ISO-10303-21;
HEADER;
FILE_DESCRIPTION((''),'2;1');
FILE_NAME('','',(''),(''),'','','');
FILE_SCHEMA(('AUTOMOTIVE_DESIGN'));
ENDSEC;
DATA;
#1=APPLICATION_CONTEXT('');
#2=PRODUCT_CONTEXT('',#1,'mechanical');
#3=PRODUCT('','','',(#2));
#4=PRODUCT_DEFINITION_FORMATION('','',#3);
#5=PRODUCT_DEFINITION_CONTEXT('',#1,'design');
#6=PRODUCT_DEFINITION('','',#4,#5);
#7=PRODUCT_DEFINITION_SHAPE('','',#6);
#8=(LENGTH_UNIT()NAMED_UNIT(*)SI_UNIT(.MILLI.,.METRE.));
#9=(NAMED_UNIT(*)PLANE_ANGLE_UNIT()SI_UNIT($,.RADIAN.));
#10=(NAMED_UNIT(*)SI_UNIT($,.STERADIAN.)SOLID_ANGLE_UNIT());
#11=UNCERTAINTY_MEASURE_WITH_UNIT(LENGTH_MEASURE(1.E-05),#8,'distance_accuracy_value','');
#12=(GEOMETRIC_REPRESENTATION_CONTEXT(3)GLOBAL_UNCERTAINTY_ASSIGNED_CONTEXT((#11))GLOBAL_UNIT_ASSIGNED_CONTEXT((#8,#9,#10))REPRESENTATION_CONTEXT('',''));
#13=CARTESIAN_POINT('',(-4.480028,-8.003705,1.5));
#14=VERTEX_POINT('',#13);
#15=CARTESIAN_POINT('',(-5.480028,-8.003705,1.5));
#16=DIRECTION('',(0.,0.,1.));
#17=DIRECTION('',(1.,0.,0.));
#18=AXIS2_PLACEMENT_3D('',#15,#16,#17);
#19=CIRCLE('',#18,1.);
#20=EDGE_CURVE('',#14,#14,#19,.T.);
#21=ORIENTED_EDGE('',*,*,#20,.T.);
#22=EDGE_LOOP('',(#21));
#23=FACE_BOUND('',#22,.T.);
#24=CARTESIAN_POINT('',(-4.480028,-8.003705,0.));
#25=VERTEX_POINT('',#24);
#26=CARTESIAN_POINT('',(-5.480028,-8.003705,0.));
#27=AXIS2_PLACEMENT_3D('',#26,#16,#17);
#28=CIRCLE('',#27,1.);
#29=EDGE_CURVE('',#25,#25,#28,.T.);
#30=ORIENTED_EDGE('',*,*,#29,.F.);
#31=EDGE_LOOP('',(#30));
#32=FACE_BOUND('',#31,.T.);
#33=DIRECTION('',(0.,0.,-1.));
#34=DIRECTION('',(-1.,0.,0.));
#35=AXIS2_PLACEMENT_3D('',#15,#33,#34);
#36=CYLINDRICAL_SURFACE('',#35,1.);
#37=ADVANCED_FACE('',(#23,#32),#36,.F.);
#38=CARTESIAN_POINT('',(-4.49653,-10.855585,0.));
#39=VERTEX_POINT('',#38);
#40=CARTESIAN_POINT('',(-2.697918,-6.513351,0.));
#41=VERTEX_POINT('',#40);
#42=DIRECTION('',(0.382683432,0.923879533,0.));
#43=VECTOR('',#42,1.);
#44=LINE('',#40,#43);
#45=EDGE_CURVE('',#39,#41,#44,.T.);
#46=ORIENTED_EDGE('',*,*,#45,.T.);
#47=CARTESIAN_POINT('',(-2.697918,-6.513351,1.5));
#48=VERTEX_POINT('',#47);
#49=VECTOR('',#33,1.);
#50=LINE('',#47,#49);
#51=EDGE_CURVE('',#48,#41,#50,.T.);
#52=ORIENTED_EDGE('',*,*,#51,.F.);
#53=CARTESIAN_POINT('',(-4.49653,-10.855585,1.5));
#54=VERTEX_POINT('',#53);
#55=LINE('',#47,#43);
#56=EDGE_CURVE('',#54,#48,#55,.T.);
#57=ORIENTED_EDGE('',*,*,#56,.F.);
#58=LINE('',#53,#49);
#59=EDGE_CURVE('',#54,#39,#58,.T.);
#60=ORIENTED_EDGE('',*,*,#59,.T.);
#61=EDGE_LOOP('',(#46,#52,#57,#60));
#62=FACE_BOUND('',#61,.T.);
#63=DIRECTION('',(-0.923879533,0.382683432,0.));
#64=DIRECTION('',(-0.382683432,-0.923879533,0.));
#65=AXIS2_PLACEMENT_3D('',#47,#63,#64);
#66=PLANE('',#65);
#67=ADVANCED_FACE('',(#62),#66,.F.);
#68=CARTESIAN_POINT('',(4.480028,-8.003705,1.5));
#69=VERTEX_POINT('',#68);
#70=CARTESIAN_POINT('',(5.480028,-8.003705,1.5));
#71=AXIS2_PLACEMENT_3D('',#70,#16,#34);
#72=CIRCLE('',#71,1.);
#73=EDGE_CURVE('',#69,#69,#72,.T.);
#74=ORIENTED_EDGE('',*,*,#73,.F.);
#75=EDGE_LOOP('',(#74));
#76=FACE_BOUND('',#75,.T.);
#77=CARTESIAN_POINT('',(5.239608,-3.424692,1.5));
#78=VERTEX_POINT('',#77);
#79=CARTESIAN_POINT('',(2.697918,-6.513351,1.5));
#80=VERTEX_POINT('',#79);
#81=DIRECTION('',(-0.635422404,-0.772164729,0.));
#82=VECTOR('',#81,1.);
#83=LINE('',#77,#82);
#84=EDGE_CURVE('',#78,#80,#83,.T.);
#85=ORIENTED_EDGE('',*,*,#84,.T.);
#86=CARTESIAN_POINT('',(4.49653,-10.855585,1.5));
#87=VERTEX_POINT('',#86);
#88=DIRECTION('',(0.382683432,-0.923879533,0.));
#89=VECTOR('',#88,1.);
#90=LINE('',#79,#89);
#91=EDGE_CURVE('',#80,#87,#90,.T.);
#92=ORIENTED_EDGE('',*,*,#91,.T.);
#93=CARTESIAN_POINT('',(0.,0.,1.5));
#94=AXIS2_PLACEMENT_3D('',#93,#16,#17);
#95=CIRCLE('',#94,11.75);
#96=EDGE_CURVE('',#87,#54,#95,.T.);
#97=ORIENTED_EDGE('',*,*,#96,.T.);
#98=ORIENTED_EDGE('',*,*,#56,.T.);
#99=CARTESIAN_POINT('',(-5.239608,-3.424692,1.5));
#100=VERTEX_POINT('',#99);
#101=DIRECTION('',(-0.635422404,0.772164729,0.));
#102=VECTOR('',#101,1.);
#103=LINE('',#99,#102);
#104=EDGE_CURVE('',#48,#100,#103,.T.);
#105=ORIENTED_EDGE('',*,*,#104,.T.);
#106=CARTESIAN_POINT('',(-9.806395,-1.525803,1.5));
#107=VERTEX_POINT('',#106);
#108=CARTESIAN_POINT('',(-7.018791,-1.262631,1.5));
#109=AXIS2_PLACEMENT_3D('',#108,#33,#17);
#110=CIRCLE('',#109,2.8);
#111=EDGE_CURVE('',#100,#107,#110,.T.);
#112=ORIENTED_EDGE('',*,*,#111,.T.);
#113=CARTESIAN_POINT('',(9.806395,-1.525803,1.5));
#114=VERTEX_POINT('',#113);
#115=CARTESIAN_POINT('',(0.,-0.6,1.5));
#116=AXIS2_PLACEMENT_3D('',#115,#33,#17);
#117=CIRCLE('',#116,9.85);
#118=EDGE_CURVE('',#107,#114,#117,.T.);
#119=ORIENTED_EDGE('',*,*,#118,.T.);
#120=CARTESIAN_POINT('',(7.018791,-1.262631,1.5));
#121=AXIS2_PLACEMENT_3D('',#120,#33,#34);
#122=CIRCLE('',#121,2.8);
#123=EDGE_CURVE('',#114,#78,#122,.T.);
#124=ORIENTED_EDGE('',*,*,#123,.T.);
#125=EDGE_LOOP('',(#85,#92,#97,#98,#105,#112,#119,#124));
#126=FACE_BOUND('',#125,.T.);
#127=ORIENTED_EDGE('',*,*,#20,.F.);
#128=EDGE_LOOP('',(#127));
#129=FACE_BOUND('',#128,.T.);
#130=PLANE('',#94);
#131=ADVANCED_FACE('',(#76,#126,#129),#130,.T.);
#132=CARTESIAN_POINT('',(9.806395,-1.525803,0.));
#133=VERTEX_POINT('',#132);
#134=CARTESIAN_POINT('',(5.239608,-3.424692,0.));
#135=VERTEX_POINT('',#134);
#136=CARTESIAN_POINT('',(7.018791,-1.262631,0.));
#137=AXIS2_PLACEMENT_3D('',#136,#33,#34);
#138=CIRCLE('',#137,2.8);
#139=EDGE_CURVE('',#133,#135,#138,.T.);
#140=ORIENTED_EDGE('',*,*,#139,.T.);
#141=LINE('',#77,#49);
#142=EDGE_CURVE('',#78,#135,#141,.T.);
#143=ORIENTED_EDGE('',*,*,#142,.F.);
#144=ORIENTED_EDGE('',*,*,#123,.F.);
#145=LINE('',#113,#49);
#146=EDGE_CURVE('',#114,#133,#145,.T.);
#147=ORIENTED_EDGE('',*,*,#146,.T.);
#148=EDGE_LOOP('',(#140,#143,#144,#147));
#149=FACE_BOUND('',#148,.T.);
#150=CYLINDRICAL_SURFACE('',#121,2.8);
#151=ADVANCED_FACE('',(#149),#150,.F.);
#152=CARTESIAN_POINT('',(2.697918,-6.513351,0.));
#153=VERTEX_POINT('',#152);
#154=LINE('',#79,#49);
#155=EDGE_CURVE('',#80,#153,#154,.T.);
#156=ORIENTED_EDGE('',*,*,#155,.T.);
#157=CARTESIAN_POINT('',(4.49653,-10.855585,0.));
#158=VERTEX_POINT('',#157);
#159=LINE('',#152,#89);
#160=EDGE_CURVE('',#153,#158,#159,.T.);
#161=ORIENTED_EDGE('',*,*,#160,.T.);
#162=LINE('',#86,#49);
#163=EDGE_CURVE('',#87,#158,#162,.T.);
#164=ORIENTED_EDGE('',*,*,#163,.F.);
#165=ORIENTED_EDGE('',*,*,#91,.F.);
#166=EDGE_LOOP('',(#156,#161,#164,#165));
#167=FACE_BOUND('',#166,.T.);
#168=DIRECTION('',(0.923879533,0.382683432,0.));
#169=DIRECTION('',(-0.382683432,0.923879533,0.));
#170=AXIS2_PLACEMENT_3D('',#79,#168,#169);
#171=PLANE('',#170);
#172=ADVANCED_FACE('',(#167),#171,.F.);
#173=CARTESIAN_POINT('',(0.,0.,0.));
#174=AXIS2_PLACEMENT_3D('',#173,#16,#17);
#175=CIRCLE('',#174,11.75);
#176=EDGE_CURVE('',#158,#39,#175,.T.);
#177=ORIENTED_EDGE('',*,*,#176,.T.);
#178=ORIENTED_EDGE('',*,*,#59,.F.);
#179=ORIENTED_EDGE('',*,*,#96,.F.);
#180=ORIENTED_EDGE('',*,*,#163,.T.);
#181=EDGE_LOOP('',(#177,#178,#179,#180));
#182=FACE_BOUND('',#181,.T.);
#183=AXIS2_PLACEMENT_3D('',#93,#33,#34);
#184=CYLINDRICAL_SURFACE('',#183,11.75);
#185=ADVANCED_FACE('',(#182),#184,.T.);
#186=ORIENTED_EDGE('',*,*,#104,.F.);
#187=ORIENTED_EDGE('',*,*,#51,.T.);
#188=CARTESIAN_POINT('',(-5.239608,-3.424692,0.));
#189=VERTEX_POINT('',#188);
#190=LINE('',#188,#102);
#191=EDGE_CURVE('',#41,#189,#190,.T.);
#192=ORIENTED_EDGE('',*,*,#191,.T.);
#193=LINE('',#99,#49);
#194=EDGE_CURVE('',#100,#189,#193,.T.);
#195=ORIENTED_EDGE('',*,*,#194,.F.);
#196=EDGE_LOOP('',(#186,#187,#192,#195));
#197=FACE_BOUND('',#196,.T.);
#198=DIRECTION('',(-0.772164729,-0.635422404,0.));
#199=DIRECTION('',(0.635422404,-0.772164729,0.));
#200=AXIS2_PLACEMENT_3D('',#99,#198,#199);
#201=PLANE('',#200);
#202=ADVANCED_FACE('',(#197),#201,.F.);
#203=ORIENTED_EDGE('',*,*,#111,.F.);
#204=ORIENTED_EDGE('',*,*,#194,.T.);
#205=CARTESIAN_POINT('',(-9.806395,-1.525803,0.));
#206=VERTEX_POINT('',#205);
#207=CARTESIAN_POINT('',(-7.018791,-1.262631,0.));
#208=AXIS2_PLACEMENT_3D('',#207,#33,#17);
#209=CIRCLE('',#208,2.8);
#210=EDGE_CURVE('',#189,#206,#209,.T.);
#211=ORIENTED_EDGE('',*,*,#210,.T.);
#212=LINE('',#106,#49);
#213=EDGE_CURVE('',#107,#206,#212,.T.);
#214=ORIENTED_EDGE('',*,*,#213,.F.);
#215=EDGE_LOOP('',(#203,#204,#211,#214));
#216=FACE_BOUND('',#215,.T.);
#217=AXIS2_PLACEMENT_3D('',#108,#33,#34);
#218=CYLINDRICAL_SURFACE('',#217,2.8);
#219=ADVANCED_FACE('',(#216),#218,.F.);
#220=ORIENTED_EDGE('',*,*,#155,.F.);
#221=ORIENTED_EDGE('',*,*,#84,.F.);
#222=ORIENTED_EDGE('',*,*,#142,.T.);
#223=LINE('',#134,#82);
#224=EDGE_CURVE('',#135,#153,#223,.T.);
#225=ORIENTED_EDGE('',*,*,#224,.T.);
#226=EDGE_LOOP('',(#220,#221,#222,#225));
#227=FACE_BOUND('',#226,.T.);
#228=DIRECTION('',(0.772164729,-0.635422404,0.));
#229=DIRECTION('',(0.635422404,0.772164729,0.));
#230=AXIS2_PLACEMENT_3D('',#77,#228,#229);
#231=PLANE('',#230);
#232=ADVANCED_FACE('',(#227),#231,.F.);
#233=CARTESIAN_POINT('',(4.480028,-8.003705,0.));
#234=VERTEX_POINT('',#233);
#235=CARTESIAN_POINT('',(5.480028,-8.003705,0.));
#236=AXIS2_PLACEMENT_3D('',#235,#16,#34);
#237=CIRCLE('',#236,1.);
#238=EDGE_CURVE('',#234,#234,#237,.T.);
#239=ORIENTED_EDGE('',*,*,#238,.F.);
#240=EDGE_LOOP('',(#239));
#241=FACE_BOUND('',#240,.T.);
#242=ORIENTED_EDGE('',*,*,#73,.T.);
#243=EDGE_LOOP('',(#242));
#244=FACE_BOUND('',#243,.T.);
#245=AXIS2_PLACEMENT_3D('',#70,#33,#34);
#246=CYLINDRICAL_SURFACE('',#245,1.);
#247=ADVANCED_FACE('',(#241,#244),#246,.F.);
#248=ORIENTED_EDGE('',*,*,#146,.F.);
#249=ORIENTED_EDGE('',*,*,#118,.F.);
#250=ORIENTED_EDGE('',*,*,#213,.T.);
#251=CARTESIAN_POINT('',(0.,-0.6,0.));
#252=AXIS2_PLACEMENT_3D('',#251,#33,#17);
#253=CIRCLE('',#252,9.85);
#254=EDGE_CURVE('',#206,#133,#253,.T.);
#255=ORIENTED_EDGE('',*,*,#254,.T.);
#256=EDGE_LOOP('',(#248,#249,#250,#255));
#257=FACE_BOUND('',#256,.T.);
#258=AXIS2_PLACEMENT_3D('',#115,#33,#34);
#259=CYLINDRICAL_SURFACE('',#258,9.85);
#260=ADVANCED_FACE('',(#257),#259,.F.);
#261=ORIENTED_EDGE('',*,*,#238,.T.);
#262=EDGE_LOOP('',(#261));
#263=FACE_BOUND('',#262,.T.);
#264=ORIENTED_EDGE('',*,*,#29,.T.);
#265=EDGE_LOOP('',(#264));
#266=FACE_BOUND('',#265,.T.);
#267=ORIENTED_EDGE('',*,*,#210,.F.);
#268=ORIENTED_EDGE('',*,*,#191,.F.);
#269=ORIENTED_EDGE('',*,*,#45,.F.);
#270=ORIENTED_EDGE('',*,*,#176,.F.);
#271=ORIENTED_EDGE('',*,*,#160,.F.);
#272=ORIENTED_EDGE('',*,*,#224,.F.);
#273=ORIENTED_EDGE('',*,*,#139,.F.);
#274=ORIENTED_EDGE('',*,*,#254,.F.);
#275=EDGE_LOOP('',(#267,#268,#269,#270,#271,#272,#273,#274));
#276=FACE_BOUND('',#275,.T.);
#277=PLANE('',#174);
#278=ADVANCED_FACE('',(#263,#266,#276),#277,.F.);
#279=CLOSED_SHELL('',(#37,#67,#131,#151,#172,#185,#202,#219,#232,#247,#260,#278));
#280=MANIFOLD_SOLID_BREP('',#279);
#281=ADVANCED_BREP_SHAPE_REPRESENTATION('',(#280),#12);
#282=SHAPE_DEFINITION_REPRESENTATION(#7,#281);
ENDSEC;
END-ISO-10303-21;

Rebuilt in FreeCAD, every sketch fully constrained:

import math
import FreeCAD as App
import Part
import Sketcher

V = App.Vector
Q = App.Units.Quantity

doc = App.newDocument("Part")
body = doc.addObject("PartDesign::Body", "Body")

# Sketch on XY plane
sketch1 = body.newObject("Sketcher::SketchObject", "Sketch")
sketch1.AttachmentSupport = (doc.getObject("XY_Plane"), [""])
sketch1.MapMode = "FlatFace"
sketch1.addGeometry([
    Part.LineSegment(V(-2.697918, -6.513351, 0), V(-5.239608, -3.424692, 0)),  # 0
    Part.ArcOfCircle(Part.Circle(V(-7.018791, -1.262631, 0), V(0, 0, 1), 2.8), math.radians(-174.6068), math.radians(-50.54868)),  # 1
    Part.ArcOfCircle(Part.Circle(V(0, -0.6, 0), V(0, 0, 1), 9.85), math.radians(-5.3932), math.radians(185.3932)),  # 2
    Part.ArcOfCircle(Part.Circle(V(7.018791, -1.262631, 0), V(0, 0, 1), 2.8), math.radians(-129.45132), math.radians(-5.3932)),  # 3
    Part.LineSegment(V(5.239608, -3.424692, 0), V(2.697918, -6.513351, 0)),  # 4
    Part.LineSegment(V(2.697918, -6.513351, 0), V(4.49653, -10.855585, 0)),  # 5
    Part.ArcOfCircle(Part.Circle(V(0, 0, 0), V(0, 0, 1), 11.75), math.radians(-67.5), math.radians(247.5)),  # 6
    Part.LineSegment(V(-4.49653, -10.855585, 0), V(-2.697918, -6.513351, 0)),  # 7
    Part.Circle(V(5.480028, -8.003705, 0), V(0, 0, 1), 1),  # 8
    Part.Circle(V(-5.480028, -8.003705, 0), V(0, 0, 1), 1),  # 9
], False)
sketch1.addConstraint([
    Sketcher.Constraint("Coincident", 0, 2, 1, 2),
    Sketcher.Constraint("Tangent", 1, 1, 2, 2),
    Sketcher.Constraint("Tangent", 2, 1, 3, 2),
    Sketcher.Constraint("Coincident", 3, 1, 4, 1),
    Sketcher.Constraint("Coincident", 4, 2, 5, 1),
    Sketcher.Constraint("Coincident", 5, 2, 6, 1),
    Sketcher.Constraint("Coincident", 6, 2, 7, 1),
    Sketcher.Constraint("Coincident", 7, 2, 0, 1),
    Sketcher.Constraint("Coincident", 6, 3, -1, 1),
    Sketcher.Constraint("Equal", 1, 3),
    Sketcher.Constraint("Equal", 8, 9),
    Sketcher.Constraint("Symmetric", 1, 3, 3, 3, -2),
    Sketcher.Constraint("Symmetric", 8, 3, 9, 3, -2),
    Sketcher.Constraint("Symmetric", 4, 2, 7, 2, -2),
    Sketcher.Constraint("Horizontal", 0, 2, 3, 1),
    Sketcher.Constraint("Horizontal", 5, 2, 6, 2),
    Sketcher.Constraint("Diameter", 8, 2.0),
    Sketcher.Constraint("Radius", 1, 2.8),
    Sketcher.Constraint("Radius", 2, 9.85),
    Sketcher.Constraint("Radius", 6, 11.75),
    Sketcher.Constraint("Distance", 0, 4.0),
    Sketcher.Constraint("Angle", 5, Q("-67.5 deg")),
    Sketcher.Constraint("Distance", 5, 4.7),
    Sketcher.Constraint("DistanceY", 2, 3, -1, 1, 0.6),
    Sketcher.Constraint("DistanceX", 1, 3, -1, 1, 7.018791),
    Sketcher.Constraint("DistanceY", 0, 2, -1, 1, 3.424692),
    Sketcher.Constraint("DistanceX", 1, 3, 8, 3, 12.498818),
    Sketcher.Constraint("DistanceY", 5, 2, 8, 3, 2.851879),
])
pad1 = body.newObject("PartDesign::Pad", "Pad")
pad1.Profile = sketch1
pad1.Length = 1.5

doc.recompute()
